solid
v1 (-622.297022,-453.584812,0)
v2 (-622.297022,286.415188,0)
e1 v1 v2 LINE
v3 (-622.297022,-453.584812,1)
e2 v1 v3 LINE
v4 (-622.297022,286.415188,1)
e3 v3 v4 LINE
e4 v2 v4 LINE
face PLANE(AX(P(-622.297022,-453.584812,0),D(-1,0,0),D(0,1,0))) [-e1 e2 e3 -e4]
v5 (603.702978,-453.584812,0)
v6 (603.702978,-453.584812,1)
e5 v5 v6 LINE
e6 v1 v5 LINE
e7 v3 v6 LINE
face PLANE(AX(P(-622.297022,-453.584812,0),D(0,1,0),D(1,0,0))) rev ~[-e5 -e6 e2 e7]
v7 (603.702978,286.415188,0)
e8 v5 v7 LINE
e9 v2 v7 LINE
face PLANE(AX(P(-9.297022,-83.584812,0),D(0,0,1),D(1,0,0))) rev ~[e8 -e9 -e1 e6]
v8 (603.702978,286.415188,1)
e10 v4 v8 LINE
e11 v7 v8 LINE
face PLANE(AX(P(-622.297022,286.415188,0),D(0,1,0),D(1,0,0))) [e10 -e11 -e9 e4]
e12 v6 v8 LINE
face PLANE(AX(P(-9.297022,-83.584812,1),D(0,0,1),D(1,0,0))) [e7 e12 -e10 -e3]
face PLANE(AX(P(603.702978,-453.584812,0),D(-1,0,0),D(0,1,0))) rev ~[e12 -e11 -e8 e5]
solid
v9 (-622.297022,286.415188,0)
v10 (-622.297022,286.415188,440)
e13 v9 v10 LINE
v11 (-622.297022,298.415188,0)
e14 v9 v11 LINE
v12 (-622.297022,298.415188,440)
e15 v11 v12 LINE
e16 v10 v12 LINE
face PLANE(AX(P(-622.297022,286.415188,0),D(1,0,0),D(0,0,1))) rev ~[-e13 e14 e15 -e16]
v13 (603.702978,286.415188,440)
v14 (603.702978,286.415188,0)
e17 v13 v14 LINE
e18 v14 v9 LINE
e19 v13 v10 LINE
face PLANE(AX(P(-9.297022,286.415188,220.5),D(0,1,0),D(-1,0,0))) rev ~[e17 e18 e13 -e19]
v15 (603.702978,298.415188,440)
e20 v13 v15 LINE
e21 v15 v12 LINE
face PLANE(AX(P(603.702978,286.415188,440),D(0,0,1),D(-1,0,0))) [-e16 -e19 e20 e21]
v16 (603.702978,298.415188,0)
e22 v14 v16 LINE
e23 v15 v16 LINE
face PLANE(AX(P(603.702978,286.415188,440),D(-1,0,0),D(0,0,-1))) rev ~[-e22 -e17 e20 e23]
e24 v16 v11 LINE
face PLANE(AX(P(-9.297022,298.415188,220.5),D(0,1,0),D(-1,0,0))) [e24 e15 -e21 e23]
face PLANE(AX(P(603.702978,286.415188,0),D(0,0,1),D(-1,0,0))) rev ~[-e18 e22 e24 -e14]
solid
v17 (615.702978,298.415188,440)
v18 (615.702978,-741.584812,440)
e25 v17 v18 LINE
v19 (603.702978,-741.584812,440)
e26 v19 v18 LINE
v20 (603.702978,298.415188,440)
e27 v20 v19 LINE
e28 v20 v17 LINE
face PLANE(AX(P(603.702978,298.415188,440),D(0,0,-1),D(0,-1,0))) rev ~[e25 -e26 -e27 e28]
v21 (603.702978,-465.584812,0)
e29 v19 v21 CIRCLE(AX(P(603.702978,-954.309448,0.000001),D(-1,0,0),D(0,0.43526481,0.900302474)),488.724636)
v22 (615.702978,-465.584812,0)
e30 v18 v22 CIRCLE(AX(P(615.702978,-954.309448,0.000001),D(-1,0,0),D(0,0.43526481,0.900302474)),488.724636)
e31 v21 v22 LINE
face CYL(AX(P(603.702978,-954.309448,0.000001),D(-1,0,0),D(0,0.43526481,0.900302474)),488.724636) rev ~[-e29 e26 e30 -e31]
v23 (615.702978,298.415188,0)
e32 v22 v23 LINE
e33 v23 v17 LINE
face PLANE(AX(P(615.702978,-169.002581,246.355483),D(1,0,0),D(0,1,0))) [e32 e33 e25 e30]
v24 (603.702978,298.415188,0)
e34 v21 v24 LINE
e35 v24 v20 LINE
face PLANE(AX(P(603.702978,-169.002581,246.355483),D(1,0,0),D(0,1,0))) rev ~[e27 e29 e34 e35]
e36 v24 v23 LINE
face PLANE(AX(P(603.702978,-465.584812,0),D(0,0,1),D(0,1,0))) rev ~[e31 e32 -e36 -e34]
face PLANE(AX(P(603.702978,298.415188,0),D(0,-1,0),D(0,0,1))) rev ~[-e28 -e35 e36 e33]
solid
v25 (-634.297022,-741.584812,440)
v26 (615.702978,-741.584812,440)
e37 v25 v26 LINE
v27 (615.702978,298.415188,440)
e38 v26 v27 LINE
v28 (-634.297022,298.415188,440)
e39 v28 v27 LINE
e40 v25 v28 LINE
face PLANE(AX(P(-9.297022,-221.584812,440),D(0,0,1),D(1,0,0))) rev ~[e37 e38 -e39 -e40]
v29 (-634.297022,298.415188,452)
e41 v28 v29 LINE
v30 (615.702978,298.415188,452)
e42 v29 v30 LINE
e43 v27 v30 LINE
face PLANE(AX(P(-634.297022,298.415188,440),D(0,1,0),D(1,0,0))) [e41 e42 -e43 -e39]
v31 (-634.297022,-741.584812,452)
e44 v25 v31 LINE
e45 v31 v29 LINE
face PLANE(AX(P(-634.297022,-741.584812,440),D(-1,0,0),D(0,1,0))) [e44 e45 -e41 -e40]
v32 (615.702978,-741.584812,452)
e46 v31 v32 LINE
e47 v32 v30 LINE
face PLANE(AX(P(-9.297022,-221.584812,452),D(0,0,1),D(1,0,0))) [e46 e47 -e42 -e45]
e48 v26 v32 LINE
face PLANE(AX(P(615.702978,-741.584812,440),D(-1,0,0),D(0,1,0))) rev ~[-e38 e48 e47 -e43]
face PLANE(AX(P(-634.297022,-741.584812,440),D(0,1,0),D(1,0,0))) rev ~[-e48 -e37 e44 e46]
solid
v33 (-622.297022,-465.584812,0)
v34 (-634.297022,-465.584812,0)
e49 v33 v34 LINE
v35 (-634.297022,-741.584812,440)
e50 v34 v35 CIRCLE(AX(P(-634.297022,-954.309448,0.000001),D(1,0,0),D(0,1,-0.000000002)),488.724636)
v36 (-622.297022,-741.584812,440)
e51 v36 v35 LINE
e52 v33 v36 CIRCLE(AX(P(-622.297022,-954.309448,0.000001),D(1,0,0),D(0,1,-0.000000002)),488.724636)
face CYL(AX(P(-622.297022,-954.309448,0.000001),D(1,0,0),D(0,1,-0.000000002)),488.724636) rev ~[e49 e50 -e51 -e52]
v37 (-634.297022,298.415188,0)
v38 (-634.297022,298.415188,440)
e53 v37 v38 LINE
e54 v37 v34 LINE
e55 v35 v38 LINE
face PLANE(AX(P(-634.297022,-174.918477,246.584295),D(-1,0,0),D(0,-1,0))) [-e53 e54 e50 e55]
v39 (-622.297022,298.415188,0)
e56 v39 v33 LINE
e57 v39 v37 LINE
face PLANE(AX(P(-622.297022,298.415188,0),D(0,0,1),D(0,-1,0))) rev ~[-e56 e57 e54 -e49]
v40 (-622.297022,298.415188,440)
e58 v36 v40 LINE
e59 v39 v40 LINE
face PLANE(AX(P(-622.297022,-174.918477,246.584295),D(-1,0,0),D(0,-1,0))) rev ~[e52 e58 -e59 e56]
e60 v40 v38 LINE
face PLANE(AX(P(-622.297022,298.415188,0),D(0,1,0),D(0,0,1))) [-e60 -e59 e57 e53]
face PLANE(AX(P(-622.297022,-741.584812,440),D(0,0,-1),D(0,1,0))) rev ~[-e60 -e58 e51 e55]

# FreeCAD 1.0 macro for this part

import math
import FreeCAD as App
import Part
import Sketcher
Q = App.Units.Quantity

doc = App.newDocument("Part")
body = doc.addObject("PartDesign::Body", "Body")

# Sketch on XY plane
sketch1 = body.newObject("Sketcher::SketchObject", "Sketch")
sketch1.AttachmentSupport = (doc.getObject("XY_Plane"), [""])
sketch1.MapMode = "FlatFace"
sketch1.addGeometry([
    Part.LineSegment(App.Vector(-622, 286, 0), App.Vector(-622, -454, 0)),
    Part.LineSegment(App.Vector(-622, -454, 0), App.Vector(604, -454, 0)),
    Part.LineSegment(App.Vector(604, -454, 0), App.Vector(604, 286, 0)),
    Part.LineSegment(App.Vector(604, 286, 0), App.Vector(-622, 286, 0)),
], False)
sketch1.addConstraint([
    Sketcher.Constraint("Coincident", 0, 2, 1, 1),
    Sketcher.Constraint("Coincident", 1, 2, 2, 1),
    Sketcher.Constraint("Coincident", 2, 2, 3, 1),
    Sketcher.Constraint("Coincident", 3, 2, 0, 1),
    Sketcher.Constraint("Vertical", 0),
    Sketcher.Constraint("Horizontal", 1),
    Sketcher.Constraint("Vertical", 2),
    Sketcher.Constraint("Horizontal", 3),
    Sketcher.Constraint("DistanceX", 1, 1, 1, 2, Q("1226 mm")),
    Sketcher.Constraint("DistanceY", 0, 2, 0, 1, Q("740 mm")),
    Sketcher.Constraint("DistanceX", 0, 2, -1, 1, Q("622.297022 mm")),
    Sketcher.Constraint("DistanceY", 0, 2, -1, 1, Q("453.584812 mm")),
])
pad1 = body.newObject("PartDesign::Pad", "Pad")
pad1.Profile = sketch1
pad1.Length = 1
body2 = doc.addObject("PartDesign::Body", "Body001")

# Sketch on XZ plane
sketch2 = body2.newObject("Sketcher::SketchObject", "Sketch001")
sketch2.AttachmentSupport = (doc.getObject("XZ_Plane001"), [""])
sketch2.MapMode = "FlatFace"
sketch2.AttachmentOffset = App.Placement(App.Vector(0, 0, -286.415188), App.Rotation())
sketch2.addGeometry([
    Part.LineSegment(App.Vector(604, 440, 0), App.Vector(604, 0, 0)),
    Part.LineSegment(App.Vector(604, 0, 0), App.Vector(-622, 0, 0)),
    Part.LineSegment(App.Vector(-622, 0, 0), App.Vector(-622, 440, 0)),
    Part.LineSegment(App.Vector(-622, 440, 0), App.Vector(604, 440, 0)),
], False)
sketch2.addConstraint([
    Sketcher.Constraint("Coincident", 0, 2, 1, 1),
    Sketcher.Constraint("Coincident", 1, 2, 2, 1),
    Sketcher.Constraint("Coincident", 2, 2, 3, 1),
    Sketcher.Constraint("Coincident", 3, 2, 0, 1),
    Sketcher.Constraint("Vertical", 0),
    Sketcher.Constraint("Horizontal", 1),
    Sketcher.Constraint("Vertical", 2),
    Sketcher.Constraint("Horizontal", 3),
    Sketcher.Constraint("PointOnObject", 0, 2, -1),
    Sketcher.Constraint("DistanceX", 1, 2, 1, 1, Q("1226 mm")),
    Sketcher.Constraint("DistanceY", 0, 2, 0, 1, Q("440 mm")),
    Sketcher.Constraint("DistanceX", -1, 1, 0, 2, Q("603.702978 mm")),
])
pad2 = body2.newObject("PartDesign::Pad", "Pad001")
pad2.Profile = sketch2
pad2.Length = 12
pad2.Reversed = True
body3 = doc.addObject("PartDesign::Body", "Body002")

# Sketch on YZ plane
sketch3 = body3.newObject("Sketcher::SketchObject", "Sketch002")
sketch3.AttachmentSupport = (doc.getObject("YZ_Plane002"), [""])
sketch3.MapMode = "FlatFace"
sketch3.AttachmentOffset = App.Placement(App.Vector(0, 0, -622.297022), App.Rotation())
sketch3.addGeometry([
    Part.LineSegment(App.Vector(-742, 440, 0), App.Vector(298, 440, 0)),
    Part.LineSegment(App.Vector(298, 440, 0), App.Vector(298, 0, 0)),
    Part.LineSegment(App.Vector(298, 0, 0), App.Vector(-466, 0, 0)),
    Part.ArcOfCircle(Part.Circle(App.Vector(-954, 0, 0), App.Vector(0, 0, 1), 489), math.radians(0), math.radians(64)),
], False)
sketch3.addConstraint([
    Sketcher.Constraint("Coincident", 0, 2, 1, 1),
    Sketcher.Constraint("Coincident", 1, 2, 2, 1),
    Sketcher.Constraint("Coincident", 2, 2, 3, 1),
    Sketcher.Constraint("Coincident", 3, 2, 0, 1),
    Sketcher.Constraint("Horizontal", 0),
    Sketcher.Constraint("Vertical", 1),
    Sketcher.Constraint("Horizontal", 2),
    Sketcher.Constraint("PointOnObject", 3, 3, -1),
    Sketcher.Constraint("PointOnObject", 1, 2, -1),
    Sketcher.Constraint("DistanceX", 0, 1, 0, 2, Q("1040 mm")),
    Sketcher.Constraint("DistanceX", 2, 2, 2, 1, Q("764 mm")),
    Sketcher.Constraint("DistanceY", 1, 2, 1, 1, Q("440 mm")),
    Sketcher.Constraint("DistanceX", 3, 3, -1, 1, Q("954.309448 mm")),
])
pad3 = body3.newObject("PartDesign::Pad", "Pad002")
pad3.Profile = sketch3
pad3.Length = 12
pad3.Reversed = True
body4 = doc.addObject("PartDesign::Body", "Body003")

# Sketch on YZ plane
sketch4 = body4.newObject("Sketcher::SketchObject", "Sketch003")
sketch4.AttachmentSupport = (doc.getObject("YZ_Plane003"), [""])
sketch4.MapMode = "FlatFace"
sketch4.AttachmentOffset = App.Placement(App.Vector(0, 0, 603.702978), App.Rotation())
sketch4.addGeometry([
    Part.ArcOfCircle(Part.Circle(App.Vector(-954, 0, 0), App.Vector(0, 0, 1), 489), math.radians(0), math.radians(64)),
    Part.LineSegment(App.Vector(-466, 0, 0), App.Vector(298, 0, 0)),
    Part.LineSegment(App.Vector(298, 0, 0), App.Vector(298, 440, 0)),
    Part.LineSegment(App.Vector(298, 440, 0), App.Vector(-742, 440, 0)),
], False)
sketch4.addConstraint([
    Sketcher.Constraint("Coincident", 0, 1, 1, 1),
    Sketcher.Constraint("Coincident", 1, 2, 2, 1),
    Sketcher.Constraint("Coincident", 2, 2, 3, 1),
    Sketcher.Constraint("Coincident", 3, 2, 0, 2),
    Sketcher.Constraint("Horizontal", 1),
    Sketcher.Constraint("Vertical", 2),
    Sketcher.Constraint("Horizontal", 3),
    Sketcher.Constraint("PointOnObject", 0, 3, -1),
    Sketcher.Constraint("PointOnObject", 1, 2, -1),
    Sketcher.Constraint("DistanceX", 1, 1, 1, 2, Q("764 mm")),
    Sketcher.Constraint("DistanceX", 3, 2, 3, 1, Q("1040 mm")),
    Sketcher.Constraint("DistanceY", 2, 1, 2, 2, Q("440 mm")),
    Sketcher.Constraint("DistanceX", 0, 3, -1, 1, Q("954.309448 mm")),
])
pad4 = body4.newObject("PartDesign::Pad", "Pad003")
pad4.Profile = sketch4
pad4.Length = 12
body5 = doc.addObject("PartDesign::Body", "Body004")

# Sketch on XY plane
sketch5 = body5.newObject("Sketcher::SketchObject", "Sketch004")
sketch5.AttachmentSupport = (doc.getObject("XY_Plane004"), [""])
sketch5.MapMode = "FlatFace"
sketch5.AttachmentOffset = App.Placement(App.Vector(0, 0, 440), App.Rotation())
sketch5.addGeometry([
    Part.LineSegment(App.Vector(-634, 298, 0), App.Vector(-634, -742, 0)),
    Part.LineSegment(App.Vector(-634, -742, 0), App.Vector(616, -742, 0)),
    Part.LineSegment(App.Vector(616, -742, 0), App.Vector(616, 298, 0)),
    Part.LineSegment(App.Vector(616, 298, 0), App.Vector(-634, 298, 0)),
], False)
sketch5.addConstraint([
    Sketcher.Constraint("Coincident", 0, 2, 1, 1),
    Sketcher.Constraint("Coincident", 1, 2, 2, 1),
    Sketcher.Constraint("Coincident", 2, 2, 3, 1),
    Sketcher.Constraint("Coincident", 3, 2, 0, 1),
    Sketcher.Constraint("Vertical", 0),
    Sketcher.Constraint("Horizontal", 1),
    Sketcher.Constraint("Vertical", 2),
    Sketcher.Constraint("Horizontal", 3),
    Sketcher.Constraint("DistanceX", 1, 1, 1, 2, Q("1250 mm")),
    Sketcher.Constraint("DistanceY", 0, 2, 0, 1, Q("1040 mm")),
    Sketcher.Constraint("DistanceX", 0, 2, -1, 1, Q("634.297022 mm")),
    Sketcher.Constraint("DistanceY", -1, 1, 2, 2, Q("298.415188 mm")),
])
pad5 = body5.newObject("PartDesign::Pad", "Pad004")
pad5.Profile = sketch5
pad5.Length = 12

doc.recompute()
